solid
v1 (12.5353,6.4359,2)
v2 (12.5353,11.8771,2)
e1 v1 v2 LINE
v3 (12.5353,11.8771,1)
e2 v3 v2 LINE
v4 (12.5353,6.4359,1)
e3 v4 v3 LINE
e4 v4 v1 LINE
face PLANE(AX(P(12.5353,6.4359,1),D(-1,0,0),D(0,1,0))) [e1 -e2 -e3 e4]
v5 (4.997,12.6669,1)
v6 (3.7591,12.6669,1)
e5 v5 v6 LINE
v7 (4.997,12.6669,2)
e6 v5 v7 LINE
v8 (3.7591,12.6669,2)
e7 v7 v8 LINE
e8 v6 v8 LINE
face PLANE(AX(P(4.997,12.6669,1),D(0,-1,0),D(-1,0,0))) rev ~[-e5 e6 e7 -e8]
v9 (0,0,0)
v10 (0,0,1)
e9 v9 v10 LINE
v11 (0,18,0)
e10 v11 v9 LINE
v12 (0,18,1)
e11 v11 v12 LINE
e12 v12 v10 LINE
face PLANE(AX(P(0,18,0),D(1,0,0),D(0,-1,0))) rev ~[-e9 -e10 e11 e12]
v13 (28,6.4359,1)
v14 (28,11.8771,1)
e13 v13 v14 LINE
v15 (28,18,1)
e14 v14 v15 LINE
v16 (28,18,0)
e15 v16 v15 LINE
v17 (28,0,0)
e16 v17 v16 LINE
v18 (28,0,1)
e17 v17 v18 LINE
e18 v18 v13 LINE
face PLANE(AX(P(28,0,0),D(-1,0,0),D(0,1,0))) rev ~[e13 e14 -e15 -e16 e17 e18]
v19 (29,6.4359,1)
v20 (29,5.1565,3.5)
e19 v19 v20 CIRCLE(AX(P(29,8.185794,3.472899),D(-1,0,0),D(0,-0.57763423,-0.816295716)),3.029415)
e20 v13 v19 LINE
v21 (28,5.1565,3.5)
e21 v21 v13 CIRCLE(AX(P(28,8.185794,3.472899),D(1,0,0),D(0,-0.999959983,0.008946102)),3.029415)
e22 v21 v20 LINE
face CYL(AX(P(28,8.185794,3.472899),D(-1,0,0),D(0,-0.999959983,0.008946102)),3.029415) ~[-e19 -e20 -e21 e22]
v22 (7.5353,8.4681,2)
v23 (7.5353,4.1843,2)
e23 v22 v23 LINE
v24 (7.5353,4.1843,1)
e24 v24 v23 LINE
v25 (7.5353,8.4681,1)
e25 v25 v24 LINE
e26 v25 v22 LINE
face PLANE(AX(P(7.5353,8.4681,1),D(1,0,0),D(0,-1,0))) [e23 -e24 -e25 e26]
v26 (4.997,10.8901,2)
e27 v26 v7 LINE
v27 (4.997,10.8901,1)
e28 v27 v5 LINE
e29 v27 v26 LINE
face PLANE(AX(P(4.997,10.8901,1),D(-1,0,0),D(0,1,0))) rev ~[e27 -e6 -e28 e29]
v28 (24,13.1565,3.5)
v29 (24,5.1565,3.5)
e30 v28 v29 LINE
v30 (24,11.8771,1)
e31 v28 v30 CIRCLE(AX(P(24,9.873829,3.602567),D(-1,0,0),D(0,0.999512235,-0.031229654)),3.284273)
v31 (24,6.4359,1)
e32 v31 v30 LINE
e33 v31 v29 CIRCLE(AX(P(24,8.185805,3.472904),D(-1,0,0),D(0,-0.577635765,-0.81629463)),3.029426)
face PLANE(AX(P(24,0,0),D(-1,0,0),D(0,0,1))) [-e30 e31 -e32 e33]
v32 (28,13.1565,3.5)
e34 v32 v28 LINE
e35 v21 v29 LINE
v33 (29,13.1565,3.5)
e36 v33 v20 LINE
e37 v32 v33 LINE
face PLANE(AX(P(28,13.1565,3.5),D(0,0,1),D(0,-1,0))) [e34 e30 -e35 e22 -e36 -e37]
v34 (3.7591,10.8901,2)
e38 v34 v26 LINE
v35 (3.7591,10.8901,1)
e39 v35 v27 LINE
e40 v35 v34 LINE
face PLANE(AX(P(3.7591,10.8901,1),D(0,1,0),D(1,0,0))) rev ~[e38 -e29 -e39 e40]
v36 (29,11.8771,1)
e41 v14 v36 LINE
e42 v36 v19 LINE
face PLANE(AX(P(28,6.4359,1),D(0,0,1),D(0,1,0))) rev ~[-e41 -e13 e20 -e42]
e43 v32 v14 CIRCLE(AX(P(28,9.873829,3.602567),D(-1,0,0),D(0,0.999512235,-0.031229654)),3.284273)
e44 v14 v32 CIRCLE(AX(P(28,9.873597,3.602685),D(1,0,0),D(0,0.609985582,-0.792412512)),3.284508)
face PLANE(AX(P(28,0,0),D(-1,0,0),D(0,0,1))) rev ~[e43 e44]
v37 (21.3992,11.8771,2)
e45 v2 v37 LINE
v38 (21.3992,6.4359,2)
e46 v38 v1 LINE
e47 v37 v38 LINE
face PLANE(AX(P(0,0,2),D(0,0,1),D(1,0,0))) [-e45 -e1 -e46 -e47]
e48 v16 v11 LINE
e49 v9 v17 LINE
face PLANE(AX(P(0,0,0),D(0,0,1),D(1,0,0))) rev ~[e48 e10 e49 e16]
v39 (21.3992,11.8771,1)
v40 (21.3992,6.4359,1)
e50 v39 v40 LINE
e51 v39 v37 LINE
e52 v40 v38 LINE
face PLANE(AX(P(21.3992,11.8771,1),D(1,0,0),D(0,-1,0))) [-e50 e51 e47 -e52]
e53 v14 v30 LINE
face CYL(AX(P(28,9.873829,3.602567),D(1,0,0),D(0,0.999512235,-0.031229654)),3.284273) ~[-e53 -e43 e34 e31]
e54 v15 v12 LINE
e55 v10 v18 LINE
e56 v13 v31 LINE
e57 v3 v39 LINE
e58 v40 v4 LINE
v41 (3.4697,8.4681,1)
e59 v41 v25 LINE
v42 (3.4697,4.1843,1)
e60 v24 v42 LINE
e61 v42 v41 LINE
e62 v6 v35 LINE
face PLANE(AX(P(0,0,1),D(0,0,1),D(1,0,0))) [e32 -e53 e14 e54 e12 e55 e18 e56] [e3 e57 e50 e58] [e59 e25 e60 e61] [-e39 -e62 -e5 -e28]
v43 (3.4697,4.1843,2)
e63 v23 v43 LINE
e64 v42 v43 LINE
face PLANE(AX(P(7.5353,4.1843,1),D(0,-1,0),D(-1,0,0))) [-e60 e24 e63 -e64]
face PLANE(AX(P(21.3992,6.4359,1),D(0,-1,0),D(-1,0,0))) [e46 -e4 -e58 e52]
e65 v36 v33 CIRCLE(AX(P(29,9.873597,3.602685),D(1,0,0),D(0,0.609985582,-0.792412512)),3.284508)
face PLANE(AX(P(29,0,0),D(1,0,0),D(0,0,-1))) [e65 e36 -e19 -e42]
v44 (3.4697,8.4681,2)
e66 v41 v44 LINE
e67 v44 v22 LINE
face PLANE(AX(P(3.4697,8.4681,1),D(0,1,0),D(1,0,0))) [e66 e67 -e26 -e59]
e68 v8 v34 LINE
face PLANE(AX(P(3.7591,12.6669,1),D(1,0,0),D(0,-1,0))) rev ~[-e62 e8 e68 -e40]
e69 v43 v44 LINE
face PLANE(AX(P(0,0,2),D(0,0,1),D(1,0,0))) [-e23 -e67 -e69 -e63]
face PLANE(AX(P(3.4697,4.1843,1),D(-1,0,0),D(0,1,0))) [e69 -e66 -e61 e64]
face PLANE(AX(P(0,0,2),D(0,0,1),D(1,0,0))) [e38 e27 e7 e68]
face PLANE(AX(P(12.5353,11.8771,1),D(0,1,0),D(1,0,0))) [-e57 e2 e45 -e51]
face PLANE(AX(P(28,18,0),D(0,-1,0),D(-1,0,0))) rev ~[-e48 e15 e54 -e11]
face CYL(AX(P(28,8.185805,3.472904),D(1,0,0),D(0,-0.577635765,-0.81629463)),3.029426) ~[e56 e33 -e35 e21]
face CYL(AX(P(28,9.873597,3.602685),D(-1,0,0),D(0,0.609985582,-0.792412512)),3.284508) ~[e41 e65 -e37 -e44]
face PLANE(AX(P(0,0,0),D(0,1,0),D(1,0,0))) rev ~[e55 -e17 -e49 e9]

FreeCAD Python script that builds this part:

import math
import FreeCAD as App
import Part
import Sketcher

V = App.Vector


def add_polygon(sketch, points):
    """Adds a closed chain of lines whose ends are joined by coincident constraints."""
    first, n = sketch.GeometryCount, len(points)
    for a, b in zip(points, points[1:] + points[:1]):
        sketch.addGeometry(Part.LineSegment(App.Vector(*a, 0), App.Vector(*b, 0)), False)
    for i in range(n):
        sketch.addConstraint(Sketcher.Constraint("Coincident", first + i, 2, first + (i + 1) % n, 1))

doc = App.newDocument("Part")
params = doc.addObject("Spreadsheet::Sheet", "Params")
for row, (alias, value) in enumerate([
    ("sketch1_width", "28 mm"),
    ("sketch1_height", "18 mm"),
    ("pad1_length", "1 mm"),
    ("pad2_length", "1 mm"),
    ("sketch3_width", "8 mm"),
    ("sketch3_width2", "1.75 mm"),
    ("pad3_length", "1 mm"),
    ("sketch4_width", "8 mm"),
    ("pad4_length", "4 mm"),
], start=1):
    params.set(f"A{row}", alias)
    params.set(f"B{row}", "=" + value)
    params.setAlias(f"B{row}", alias)

body = doc.addObject("PartDesign::Body", "Body")
body.AllowCompound = True

# Sketch on XY plane
sketch1 = doc.addObject("Sketcher::SketchObject", "Sketch")
body.addObject(sketch1)
sketch1.AttachmentSupport = (doc.XY_Plane, [""])
sketch1.MapMode = "FlatFace"
add_polygon(sketch1, [(0, 18), (0, 0), (28, 0), (28, 18)])  # lines 0-3
sketch1.addConstraint([
    Sketcher.Constraint("Vertical", 0),
    Sketcher.Constraint("Horizontal", 1),
    Sketcher.Constraint("Vertical", 2),
    Sketcher.Constraint("Horizontal", 3),
    Sketcher.Constraint("Coincident", 0, 2, -1, 1),
    Sketcher.Constraint("DistanceX", 1, 1, 1, 2, 28.0),
    Sketcher.Constraint("DistanceY", 0, 2, 0, 1, 18.0),
])
sketch1.setExpression("Constraints[9]", "Params.sketch1_width")
sketch1.setExpression("Constraints[10]", "Params.sketch1_height")
pad1 = doc.addObject("PartDesign::Pad", "Pad")
body.addObject(pad1)
pad1.Profile = sketch1
pad1.setExpression("Length", "Params.pad1_length")

# Sketch on XY plane
sketch2 = doc.addObject("Sketcher::SketchObject", "Sketch001")
body.addObject(sketch2)
sketch2.AttachmentSupport = (doc.XY_Plane, [""])
sketch2.MapMode = "FlatFace"
sketch2.AttachmentOffset = App.Placement(V(0, 0, 1), App.Rotation())
add_polygon(sketch2, [(21.4, 6.4), (21.4, 11.9), (12.5, 11.9), (12.5, 6.4)])  # lines 0-3
add_polygon(sketch2, [(5, 12.7), (3.8, 12.7), (3.8, 10.9), (5, 10.9)])  # lines 4-7
add_polygon(sketch2, [(7.5, 8.5), (3.5, 8.5), (3.5, 4.2), (7.5, 4.2)])  # lines 8-11
sketch2.addConstraint([
    Sketcher.Constraint("Vertical", 0),
    Sketcher.Constraint("Horizontal", 1),
    Sketcher.Constraint("Vertical", 2),
    Sketcher.Constraint("Horizontal", 3),
    Sketcher.Constraint("Horizontal", 4),
    Sketcher.Constraint("Vertical", 5),
    Sketcher.Constraint("Horizontal", 6),
    Sketcher.Constraint("Vertical", 7),
    Sketcher.Constraint("Horizontal", 8),
    Sketcher.Constraint("Vertical", 9),
    Sketcher.Constraint("Horizontal", 10),
    Sketcher.Constraint("Vertical", 11),
    Sketcher.Constraint("DistanceX", 10, 2, 2, 2, 5.0),
    Sketcher.Constraint("DistanceX", 1, 2, 1, 1, 8.864),
    Sketcher.Constraint("DistanceX", 4, 2, 4, 1, 1.238),
    Sketcher.Constraint("DistanceY", -1, 1, 5, 2, 10.89),
    Sketcher.Constraint("DistanceX", 4, 2, 0, 2, 17.64),
    Sketcher.Constraint("DistanceX", 8, 2, 8, 1, 4.0656),
    Sketcher.Constraint("DistanceY", 0, 1, 0, 2, 5.4412),
    Sketcher.Constraint("DistanceY", 5, 2, 5, 1, 1.7768),
    Sketcher.Constraint("DistanceY", 9, 2, 9, 1, 4.2838),
    Sketcher.Constraint("DistanceY", -1, 1, 0, 2, 11.877),
    Sketcher.Constraint("DistanceX", -1, 1, 4, 2, 3.759),
    Sketcher.Constraint("DistanceY", -1, 1, 8, 2, 8.468),
])
pad2 = doc.addObject("PartDesign::Pad", "Pad001")
body.addObject(pad2)
pad2.Profile = sketch2
pad2.setExpression("Length", "Params.pad2_length")

# Sketch on YZ plane
sketch3 = doc.addObject("Sketcher::SketchObject", "Sketch002")
body.addObject(sketch3)
sketch3.AttachmentSupport = (doc.YZ_Plane, [""])
sketch3.MapMode = "FlatFace"
sketch3.AttachmentOffset = App.Placement(V(0, 0, 28), App.Rotation())
sketch3.addGeometry([
    Part.LineSegment(V(6.4, 1, 0), V(11.9, 1, 0)),
    Part.ArcOfCircle(Part.Circle(V(9.9, 3.6, 0), V(0, 0, 1), 3.3), math.radians(-52), math.radians(-2)),
    Part.LineSegment(V(13.2, 3.5, 0), V(5.2, 3.5, 0)),
    Part.ArcOfCircle(Part.Circle(V(8.2, 3.5, 0), V(0, 0, 1), 3), math.radians(179), math.radians(235)),
], False)
sketch3.addConstraint([
    Sketcher.Constraint("Coincident", 0, 2, 1, 1),
    Sketcher.Constraint("Coincident", 1, 2, 2, 1),
    Sketcher.Constraint("Coincident", 2, 2, 3, 1),
    Sketcher.Constraint("Coincident", 3, 2, 0, 1),
    Sketcher.Constraint("Horizontal", 0),
    Sketcher.Constraint("Horizontal", 2),
    Sketcher.Constraint("DistanceX", 2, 2, 2, 1, 8.0),
    Sketcher.Constraint("DistanceY", 0, 2, 1, 2, 2.5),
    Sketcher.Constraint("DistanceY", -1, 1, 0, 2, 1.0),
    Sketcher.Constraint("Radius", 1, 3.2844),
    Sketcher.Constraint("Radius", 3, 3.0294),
    Sketcher.Constraint("DistanceX", 3, 2, 3, 3, 1.75),
    Sketcher.Constraint("DistanceX", 0, 1, 0, 2, 5.4412),
    Sketcher.Constraint("DistanceX", -1, 1, 0, 2, 11.877),
])
sketch3.setExpression("Constraints[6]", "Params.sketch3_width")
sketch3.setExpression("Constraints[11]", "Params.sketch3_width2")
pad3 = doc.addObject("PartDesign::Pad", "Pad002")
body.addObject(pad3)
pad3.Profile = sketch3
pad3.setExpression("Length", "Params.pad3_length")

# Sketch on YZ plane
sketch4 = doc.addObject("Sketcher::SketchObject", "Sketch003")
body.addObject(sketch4)
sketch4.AttachmentSupport = (doc.YZ_Plane, [""])
sketch4.MapMode = "FlatFace"
sketch4.AttachmentOffset = App.Placement(V(0, 0, 28), App.Rotation())
sketch4.addGeometry([
    Part.LineSegment(V(5.2, 3.5, 0), V(13.2, 3.5, 0)),
    Part.ArcOfCircle(Part.Circle(V(9.9, 3.6, 0), V(0, 0, 1), 3.3), math.radians(-52), math.radians(-2)),
    Part.LineSegment(V(11.9, 1, 0), V(6.4, 1, 0)),
    Part.ArcOfCircle(Part.Circle(V(8.2, 3.5, 0), V(0, 0, 1), 3), math.radians(179), math.radians(235)),
], False)
sketch4.addConstraint([
    Sketcher.Constraint("Coincident", 0, 2, 1, 2),
    Sketcher.Constraint("Coincident", 1, 1, 2, 1),
    Sketcher.Constraint("Coincident", 2, 2, 3, 2),
    Sketcher.Constraint("Coincident", 3, 1, 0, 1),
    Sketcher.Constraint("Horizontal", 0),
    Sketcher.Constraint("Horizontal", 2),
    Sketcher.Constraint("DistanceX", 0, 1, 0, 2, 8.0),
    Sketcher.Constraint("DistanceY", -1, 1, 1, 1, 1.0),
    Sketcher.Constraint("DistanceY", -1, 1, 0, 2, 3.5),
    Sketcher.Constraint("Radius", 1, 3.2844),
    Sketcher.Constraint("Radius", 3, 3.0294),
    Sketcher.Constraint("DistanceX", 2, 2, 3, 3, 1.75),
    Sketcher.Constraint("DistanceX", 2, 2, 2, 1, 5.4412),
    Sketcher.Constraint("DistanceX", -1, 1, 1, 1, 11.877),
])
sketch4.setExpression("Constraints[6]", "Params.sketch4_width")
pad4 = doc.addObject("PartDesign::Pad", "Pad003")
body.addObject(pad4)
pad4.Profile = sketch4
pad4.setExpression("Length", "Params.pad4_length")
pad4.Reversed = True

doc.recompute()
